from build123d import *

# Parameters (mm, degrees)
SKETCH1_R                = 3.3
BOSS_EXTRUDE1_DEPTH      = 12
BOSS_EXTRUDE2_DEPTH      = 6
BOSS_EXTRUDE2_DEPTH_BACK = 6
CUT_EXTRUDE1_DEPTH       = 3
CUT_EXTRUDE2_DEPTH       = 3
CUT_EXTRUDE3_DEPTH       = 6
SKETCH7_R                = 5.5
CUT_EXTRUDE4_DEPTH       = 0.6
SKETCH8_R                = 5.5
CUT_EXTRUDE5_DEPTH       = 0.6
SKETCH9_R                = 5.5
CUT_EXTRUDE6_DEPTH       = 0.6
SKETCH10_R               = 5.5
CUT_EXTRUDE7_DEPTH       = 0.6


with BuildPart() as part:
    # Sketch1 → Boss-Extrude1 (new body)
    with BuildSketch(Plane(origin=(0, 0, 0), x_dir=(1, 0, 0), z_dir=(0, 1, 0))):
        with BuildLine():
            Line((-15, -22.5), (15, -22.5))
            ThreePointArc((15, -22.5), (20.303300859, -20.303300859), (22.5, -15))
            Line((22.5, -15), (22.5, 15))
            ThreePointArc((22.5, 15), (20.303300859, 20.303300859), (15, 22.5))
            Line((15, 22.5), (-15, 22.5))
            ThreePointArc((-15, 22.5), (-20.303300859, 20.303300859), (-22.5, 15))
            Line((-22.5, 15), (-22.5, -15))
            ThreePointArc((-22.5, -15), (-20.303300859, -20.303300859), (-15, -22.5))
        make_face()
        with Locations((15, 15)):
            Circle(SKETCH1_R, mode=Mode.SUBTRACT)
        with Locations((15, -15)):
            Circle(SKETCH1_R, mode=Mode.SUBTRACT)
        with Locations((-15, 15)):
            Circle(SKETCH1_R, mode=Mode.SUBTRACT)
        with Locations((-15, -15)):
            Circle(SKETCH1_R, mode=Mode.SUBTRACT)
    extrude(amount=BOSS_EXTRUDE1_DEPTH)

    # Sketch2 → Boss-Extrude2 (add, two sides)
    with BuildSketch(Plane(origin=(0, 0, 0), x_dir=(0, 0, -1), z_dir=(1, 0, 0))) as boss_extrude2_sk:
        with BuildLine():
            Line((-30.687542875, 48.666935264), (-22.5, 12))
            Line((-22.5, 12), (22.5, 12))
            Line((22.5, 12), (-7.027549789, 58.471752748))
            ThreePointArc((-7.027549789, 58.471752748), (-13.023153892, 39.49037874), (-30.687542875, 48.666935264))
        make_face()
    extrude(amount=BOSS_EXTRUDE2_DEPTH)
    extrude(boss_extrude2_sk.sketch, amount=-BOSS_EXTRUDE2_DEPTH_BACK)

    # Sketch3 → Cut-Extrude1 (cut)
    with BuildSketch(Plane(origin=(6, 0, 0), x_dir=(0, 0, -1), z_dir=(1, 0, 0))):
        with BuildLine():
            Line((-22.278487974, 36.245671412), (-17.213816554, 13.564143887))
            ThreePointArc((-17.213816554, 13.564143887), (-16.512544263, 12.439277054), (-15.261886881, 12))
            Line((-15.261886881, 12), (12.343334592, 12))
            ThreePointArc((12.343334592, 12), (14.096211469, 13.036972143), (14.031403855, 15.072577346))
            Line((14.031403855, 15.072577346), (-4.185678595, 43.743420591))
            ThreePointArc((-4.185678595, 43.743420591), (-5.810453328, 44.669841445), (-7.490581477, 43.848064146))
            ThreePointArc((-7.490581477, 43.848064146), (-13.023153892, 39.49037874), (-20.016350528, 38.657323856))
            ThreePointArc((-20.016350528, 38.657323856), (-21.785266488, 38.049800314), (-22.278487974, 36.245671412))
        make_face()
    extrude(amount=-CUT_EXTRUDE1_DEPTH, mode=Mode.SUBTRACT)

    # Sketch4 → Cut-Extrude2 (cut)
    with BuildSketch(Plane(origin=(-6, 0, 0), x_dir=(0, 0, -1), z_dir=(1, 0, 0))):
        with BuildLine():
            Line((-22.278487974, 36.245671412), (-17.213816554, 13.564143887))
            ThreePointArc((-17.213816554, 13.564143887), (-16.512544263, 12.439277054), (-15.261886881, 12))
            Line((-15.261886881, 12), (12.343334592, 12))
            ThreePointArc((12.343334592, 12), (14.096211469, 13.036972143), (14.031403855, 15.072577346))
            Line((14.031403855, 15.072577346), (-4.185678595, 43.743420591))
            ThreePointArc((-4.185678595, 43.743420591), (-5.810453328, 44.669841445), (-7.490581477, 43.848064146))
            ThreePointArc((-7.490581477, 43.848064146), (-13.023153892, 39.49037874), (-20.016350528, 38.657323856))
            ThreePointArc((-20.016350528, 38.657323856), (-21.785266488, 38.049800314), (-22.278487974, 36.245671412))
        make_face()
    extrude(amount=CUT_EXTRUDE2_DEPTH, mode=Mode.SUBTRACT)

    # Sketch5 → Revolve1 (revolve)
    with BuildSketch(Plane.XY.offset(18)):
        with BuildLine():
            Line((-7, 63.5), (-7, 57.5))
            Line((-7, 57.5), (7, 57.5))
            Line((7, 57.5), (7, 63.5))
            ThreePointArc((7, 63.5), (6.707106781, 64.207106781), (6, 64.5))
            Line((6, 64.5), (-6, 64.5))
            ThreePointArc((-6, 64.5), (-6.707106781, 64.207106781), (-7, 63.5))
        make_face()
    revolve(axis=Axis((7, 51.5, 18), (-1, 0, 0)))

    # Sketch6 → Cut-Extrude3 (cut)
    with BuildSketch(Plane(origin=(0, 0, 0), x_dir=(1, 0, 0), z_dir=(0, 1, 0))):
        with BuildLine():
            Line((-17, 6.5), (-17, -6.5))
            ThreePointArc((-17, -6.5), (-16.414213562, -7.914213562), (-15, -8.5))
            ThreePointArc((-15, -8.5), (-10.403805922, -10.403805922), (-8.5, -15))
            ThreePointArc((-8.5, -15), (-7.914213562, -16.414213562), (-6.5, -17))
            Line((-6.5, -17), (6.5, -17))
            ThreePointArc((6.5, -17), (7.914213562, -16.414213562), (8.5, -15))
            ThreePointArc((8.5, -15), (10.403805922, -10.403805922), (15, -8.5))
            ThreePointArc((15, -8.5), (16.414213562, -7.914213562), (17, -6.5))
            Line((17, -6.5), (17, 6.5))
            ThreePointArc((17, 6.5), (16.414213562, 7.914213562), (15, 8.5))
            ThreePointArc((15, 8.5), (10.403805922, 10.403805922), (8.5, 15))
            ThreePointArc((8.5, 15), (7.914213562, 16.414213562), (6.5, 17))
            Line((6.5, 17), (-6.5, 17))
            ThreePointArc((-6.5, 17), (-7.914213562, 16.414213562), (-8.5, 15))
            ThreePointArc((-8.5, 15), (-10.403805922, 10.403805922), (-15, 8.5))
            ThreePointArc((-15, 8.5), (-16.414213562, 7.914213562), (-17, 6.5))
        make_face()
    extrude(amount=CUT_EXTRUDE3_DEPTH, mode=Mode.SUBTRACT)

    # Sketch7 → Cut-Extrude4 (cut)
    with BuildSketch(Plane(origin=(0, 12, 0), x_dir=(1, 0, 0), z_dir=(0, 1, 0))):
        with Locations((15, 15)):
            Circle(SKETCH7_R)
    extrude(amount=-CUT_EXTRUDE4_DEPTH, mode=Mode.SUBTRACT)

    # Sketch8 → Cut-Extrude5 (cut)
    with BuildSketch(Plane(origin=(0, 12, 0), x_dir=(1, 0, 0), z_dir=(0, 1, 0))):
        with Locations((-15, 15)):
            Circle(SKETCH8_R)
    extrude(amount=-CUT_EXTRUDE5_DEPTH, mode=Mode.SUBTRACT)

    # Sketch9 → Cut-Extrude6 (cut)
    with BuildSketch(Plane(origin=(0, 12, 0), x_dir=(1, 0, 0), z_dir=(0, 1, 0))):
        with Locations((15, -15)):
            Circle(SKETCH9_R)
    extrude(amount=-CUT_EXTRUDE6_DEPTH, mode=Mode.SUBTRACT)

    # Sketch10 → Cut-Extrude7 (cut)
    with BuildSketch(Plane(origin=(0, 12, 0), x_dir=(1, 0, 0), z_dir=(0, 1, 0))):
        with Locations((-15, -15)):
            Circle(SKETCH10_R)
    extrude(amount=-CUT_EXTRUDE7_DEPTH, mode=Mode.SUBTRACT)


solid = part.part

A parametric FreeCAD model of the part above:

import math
import FreeCAD as App
import Part
import Sketcher

V = App.Vector

doc = App.newDocument("Part")
params = doc.addObject("Spreadsheet::Sheet", "Params")
for row, (alias, value) in enumerate([
    ("sketch1_diameter", "6.6 mm"),
    ("sketch1_radius", "7.5 mm"),
    ("sketch1_width", "30 mm"),
    ("pad1_length", "12 mm"),
    ("sketch2_radius", "13 mm"),
    ("sketch2_height", "45 mm"),
    ("pad2_length", "6 mm"),
    ("pad2_length2", "6 mm"),
    ("sketch3_radius", "2 mm"),
    ("sketch3_radius2", "13 mm"),
    ("pocket1_length", "3 mm"),
    ("sketch4_radius", "2 mm"),
    ("sketch4_radius2", "13 mm"),
    ("pocket2_length", "3 mm"),
    ("sketch5_radius", "1 mm"),
    ("sketch5_width", "14 mm"),
    ("sketch5_height", "6 mm"),
    ("revolution_angle", "360 deg"),
    ("sketch6_radius", "2 mm"),
    ("sketch6_radius2", "6.5 mm"),
    ("sketch6_width", "13 mm"),
    ("pocket3_length", "6 mm"),
    ("sketch7_diameter", "11 mm"),
    ("pocket4_length", "0.6 mm"),
    ("sketch8_diameter", "11 mm"),
    ("pocket5_length", "0.6 mm"),
    ("sketch9_diameter", "11 mm"),
    ("pocket6_length", "0.6 mm"),
    ("sketch10_diameter", "11 mm"),
    ("pocket7_length", "0.6 mm"),
], start=1):
    params.set(f"A{row}", alias)
    params.set(f"B{row}", "=" + value)
    params.setAlias(f"B{row}", alias)

body = doc.addObject("PartDesign::Body", "Body")

sketch1 = body.newObject("Sketcher::SketchObject", "Sketch")
sketch1.AttachmentSupport = (doc.getObject("XZ_Plane"), [""])
sketch1.MapMode = "FlatFace"
sketch1.addGeometry([
    Part.LineSegment(V(-15, 22.5, 0), V(15, 22.5, 0)),
    Part.ArcOfCircle(Part.Circle(V(15, 15, 0), V(0, 0, 1), 7.5), math.radians(0), math.radians(90)),
    Part.LineSegment(V(22.5, 15, 0), V(22.5, -15, 0)),
    Part.ArcOfCircle(Part.Circle(V(15, -15, 0), V(0, 0, 1), 7.5), math.radians(-90), math.radians(0)),
    Part.LineSegment(V(15, -22.5, 0), V(-15, -22.5, 0)),
    Part.ArcOfCircle(Part.Circle(V(-15, -15, 0), V(0, 0, 1), 7.5), math.radians(180), math.radians(270)),
    Part.LineSegment(V(-22.5, -15, 0), V(-22.5, 15, 0)),
    Part.ArcOfCircle(Part.Circle(V(-15, 15, 0), V(0, 0, 1), 7.5), math.radians(90), math.radians(180)),
    Part.Circle(V(-15, 15, 0), V(0, 0, 1), 3.3),
    Part.Circle(V(15, 15, 0), V(0, 0, 1), 3.3),
    Part.Circle(V(-15, -15, 0), V(0, 0, 1), 3.3),
    Part.Circle(V(15, -15, 0), V(0, 0, 1), 3.3),
], False)
sketch1.addConstraint([
    Sketcher.Constraint("Tangent", 0, 2, 1, 2),
    Sketcher.Constraint("Tangent", 1, 1, 2, 1),
    Sketcher.Constraint("Tangent", 2, 2, 3, 2),
    Sketcher.Constraint("Tangent", 3, 1, 4, 1),
    Sketcher.Constraint("Tangent", 4, 2, 5, 2),
    Sketcher.Constraint("Tangent", 5, 1, 6, 1),
    Sketcher.Constraint("Tangent", 6, 2, 7, 2),
    Sketcher.Constraint("Tangent", 7, 1, 0, 1),
    Sketcher.Constraint("Horizontal", 0),
    Sketcher.Constraint("Vertical", 2),
    Sketcher.Constraint("Horizontal", 4),
    Sketcher.Constraint("Vertical", 6),
    Sketcher.Constraint("Coincident", 8, 3, 7, 3),
    Sketcher.Constraint("Coincident", 9, 3, 1, 3),
    Sketcher.Constraint("Coincident", 10, 3, 5, 3),
    Sketcher.Constraint("Coincident", 11, 3, 3, 3),
    Sketcher.Constraint("Equal", 1, 3),
    Sketcher.Constraint("Equal", 3, 5),
    Sketcher.Constraint("Equal", 5, 7),
    Sketcher.Constraint("Equal", 8, 9),
    Sketcher.Constraint("Equal", 9, 10),
    Sketcher.Constraint("Equal", 10, 11),
    Sketcher.Constraint("Symmetric", 1, 3, 5, 3, -1, 1),
    Sketcher.Constraint("Equal", 4, 2),
    Sketcher.Constraint("Diameter", 8, 6.6),
    Sketcher.Constraint("Radius", 1, 7.5),
    Sketcher.Constraint("DistanceX", 0, 1, 0, 2, 30.0),
])
sketch1.setExpression("Constraints[24]", "Params.sketch1_diameter")
sketch1.setExpression("Constraints[25]", "Params.sketch1_radius")
sketch1.setExpression("Constraints[26]", "Params.sketch1_width")
pad1 = body.newObject("PartDesign::Pad", "Pad")
pad1.Profile = sketch1
pad1.setExpression("Length", "Params.pad1_length")
pad1.Reversed = True

sketch2 = body.newObject("Sketcher::SketchObject", "Sketch001")
sketch2.AttachmentSupport = (doc.getObject("YZ_Plane"), [""])
sketch2.MapMode = "FlatFace"
sketch2.addGeometry([
    Part.LineSegment(V(48.666935, 30.687543, 0), V(12, 22.5, 0)),
    Part.LineSegment(V(12, 22.5, 0), V(12, -22.5, 0)),
    Part.LineSegment(V(12, -22.5, 0), V(58.471753, 7.02755, 0)),
    Part.ArcOfCircle(Part.Circle(V(51.5, 18, 0), V(0, 0, 1), 13), math.radians(102.587367), math.radians(302.431348)),
], False)
sketch2.addConstraint([
    Sketcher.Constraint("Coincident", 0, 2, 1, 1),
    Sketcher.Constraint("Coincident", 1, 2, 2, 1),
    Sketcher.Constraint("Tangent", 2, 2, 3, 2),
    Sketcher.Constraint("Tangent", 3, 1, 0, 1),
    Sketcher.Constraint("Vertical", 1),
    Sketcher.Constraint("Radius", 3, 13.0),
    Sketcher.Constraint("DistanceY", 1, 2, 1, 1, 45.0),
    Sketcher.Constraint("DistanceY", -1, 1, 3, 3, 18.0),
    Sketcher.Constraint("DistanceX", -1, 1, 0, 2, 12.0),
    Sketcher.Constraint("DistanceX", -1, 1, 3, 3, 51.5),
    Sketcher.Constraint("DistanceY", -1, 1, 0, 2, 22.5),
])
sketch2.setExpression("Constraints[5]", "Params.sketch2_radius")
sketch2.setExpression("Constraints[6]", "Params.sketch2_height")
pad2 = body.newObject("PartDesign::Pad", "Pad001")
pad2.Profile = sketch2
pad2.Type = "TwoLengths"
pad2.setExpression("Length", "Params.pad2_length")
pad2.setExpression("Length2", "Params.pad2_length2")

sketch3 = body.newObject("Sketcher::SketchObject", "Sketch002")
sketch3.AttachmentSupport = (doc.getObject("YZ_Plane"), [""])
sketch3.MapMode = "FlatFace"
sketch3.AttachmentOffset = App.Placement(V(0, 0, 6), App.Rotation())
sketch3.addGeometry([
    Part.LineSegment(V(36.245671, 22.278488, 0), V(13.564144, 17.213817, 0)),
    Part.ArcOfCircle(Part.Circle(V(14, 15.261887, 0), V(0, 0, 1), 2), math.radians(102.587367), math.radians(180)),
    Part.LineSegment(V(12, 15.261887, 0), V(12, -12.343335, 0)),
    Part.ArcOfCircle(Part.Circle(V(14, -12.343335, 0), V(0, 0, 1), 2), math.radians(180), math.radians(302.431348)),
    Part.LineSegment(V(15.072577, -14.031404, 0), V(43.743421, 4.185679, 0)),
    Part.ArcOfCircle(Part.Circle(V(42.670843, 5.873748, 0), V(0, 0, 1), 2), math.radians(-57.568652), math.radians(53.941537)),
    Part.ArcOfCircle(Part.Circle(V(51.5, 18, 0), V(0, 0, 1), 13), math.radians(171.077179), math.radians(233.941537)),
    Part.ArcOfCircle(Part.Circle(V(36.681528, 20.326558, 0), V(0, 0, 1), 2), math.radians(-8.922821), math.radians(102.587367)),
], False)
sketch3.addConstraint([
    Sketcher.Constraint("Tangent", 0, 2, 1, 1),
    Sketcher.Constraint("Tangent", 1, 2, 2, 1),
    Sketcher.Constraint("Tangent", 2, 2, 3, 1),
    Sketcher.Constraint("Tangent", 3, 2, 4, 1),
    Sketcher.Constraint("Tangent", 4, 2, 5, 1),
    Sketcher.Constraint("Tangent", 5, 2, 6, 2),
    Sketcher.Constraint("Tangent", 6, 1, 7, 1),
    Sketcher.Constraint("Tangent", 7, 2, 0, 1),
    Sketcher.Constraint("Vertical", 2),
    Sketcher.Constraint("Equal", 1, 3),
    Sketcher.Constraint("Equal", 3, 5),
    Sketcher.Constraint("Equal", 5, 7),
    Sketcher.Constraint("Radius", 1, 2.0),
    Sketcher.Constraint("Radius", 6, 13.0),
    Sketcher.Constraint("DistanceX", -1, 1, 1, 3, 14.0),
    Sketcher.Constraint("DistanceY", -1, 1, 6, 3, 18.0),
    Sketcher.Constraint("DistanceX", -1, 1, 6, 3, 51.5),
    Sketcher.Constraint("Distance", 4, 33.9688),
    Sketcher.Constraint("DistanceY", 2, 2, 2, 1, 27.605221),
    Sketcher.Constraint("DistanceX", 0, 2, 5, 3, 29.106699),
    Sketcher.Constraint("DistanceY", -1, 1, 7, 3, 20.326558),
])
sketch3.setExpression("Constraints[12]", "Params.sketch3_radius")
sketch3.setExpression("Constraints[13]", "Params.sketch3_radius2")
pocket1 = body.newObject("PartDesign::Pocket", "Pocket")
pocket1.Profile = sketch3
pocket1.setExpression("Length", "Params.pocket1_length")

sketch4 = body.newObject("Sketcher::SketchObject", "Sketch003")
sketch4.AttachmentSupport = (doc.getObject("YZ_Plane"), [""])
sketch4.MapMode = "FlatFace"
sketch4.AttachmentOffset = App.Placement(V(0, 0, -6), App.Rotation())
sketch4.addGeometry([
    Part.LineSegment(V(36.245671, 22.278488, 0), V(13.564144, 17.213817, 0)),
    Part.ArcOfCircle(Part.Circle(V(14, 15.261887, 0), V(0, 0, 1), 2), math.radians(102.587367), math.radians(180)),
    Part.LineSegment(V(12, 15.261887, 0), V(12, -12.343335, 0)),
    Part.ArcOfCircle(Part.Circle(V(14, -12.343335, 0), V(0, 0, 1), 2), math.radians(180), math.radians(302.431348)),
    Part.LineSegment(V(15.072577, -14.031404, 0), V(43.743421, 4.185679, 0)),
    Part.ArcOfCircle(Part.Circle(V(42.670843, 5.873748, 0), V(0, 0, 1), 2), math.radians(-57.568652), math.radians(53.941537)),
    Part.ArcOfCircle(Part.Circle(V(51.5, 18, 0), V(0, 0, 1), 13), math.radians(171.077179), math.radians(233.941537)),
    Part.ArcOfCircle(Part.Circle(V(36.681528, 20.326558, 0), V(0, 0, 1), 2), math.radians(-8.922821), math.radians(102.587367)),
], False)
sketch4.addConstraint([
    Sketcher.Constraint("Tangent", 0, 2, 1, 1),
    Sketcher.Constraint("Tangent", 1, 2, 2, 1),
    Sketcher.Constraint("Tangent", 2, 2, 3, 1),
    Sketcher.Constraint("Tangent", 3, 2, 4, 1),
    Sketcher.Constraint("Tangent", 4, 2, 5, 1),
    Sketcher.Constraint("Tangent", 5, 2, 6, 2),
    Sketcher.Constraint("Tangent", 6, 1, 7, 1),
    Sketcher.Constraint("Tangent", 7, 2, 0, 1),
    Sketcher.Constraint("Vertical", 2),
    Sketcher.Constraint("Equal", 1, 3),
    Sketcher.Constraint("Equal", 3, 5),
    Sketcher.Constraint("Equal", 5, 7),
    Sketcher.Constraint("Radius", 1, 2.0),
    Sketcher.Constraint("Radius", 6, 13.0),
    Sketcher.Constraint("DistanceX", -1, 1, 1, 3, 14.0),
    Sketcher.Constraint("DistanceY", -1, 1, 6, 3, 18.0),
    Sketcher.Constraint("DistanceX", -1, 1, 6, 3, 51.5),
    Sketcher.Constraint("Distance", 4, 33.9688),
    Sketcher.Constraint("DistanceY", 2, 2, 2, 1, 27.605221),
    Sketcher.Constraint("DistanceX", 0, 2, 5, 3, 29.106699),
    Sketcher.Constraint("DistanceY", -1, 1, 7, 3, 20.326558),
])
sketch4.setExpression("Constraints[12]", "Params.sketch4_radius")
sketch4.setExpression("Constraints[13]", "Params.sketch4_radius2")
pocket2 = body.newObject("PartDesign::Pocket", "Pocket001")
pocket2.Profile = sketch4
pocket2.setExpression("Length", "Params.pocket2_length")
pocket2.Reversed = True

sketch5 = body.newObject("Sketcher::SketchObject", "Sketch004")
sketch5.AttachmentSupport = (doc.getObject("XY_Plane"), [""])
sketch5.MapMode = "FlatFace"
sketch5.AttachmentOffset = App.Placement(V(0, 0, 18), App.Rotation())
sketch5.addGeometry([
    Part.LineSegment(V(-7, 63.5, 0), V(-7, 57.5, 0)),
    Part.LineSegment(V(-7, 57.5, 0), V(7, 57.5, 0)),
    Part.LineSegment(V(7, 57.5, 0), V(7, 63.5, 0)),
    Part.ArcOfCircle(Part.Circle(V(6, 63.5, 0), V(0, 0, 1), 1), math.radians(0), math.radians(90)),
    Part.LineSegment(V(6, 64.5, 0), V(-6, 64.5, 0)),
    Part.ArcOfCircle(Part.Circle(V(-6, 63.5, 0), V(0, 0, 1), 1), math.radians(90), math.radians(180)),
], False)
sketch5.addGeometry(Part.LineSegment(V(7, 51.5, 0), V(-7, 51.5, 0)), True)
sketch5.addConstraint([
    Sketcher.Constraint("Coincident", 0, 2, 1, 1),
    Sketcher.Constraint("Coincident", 1, 2, 2, 1),
    Sketcher.Constraint("Tangent", 2, 2, 3, 1),
    Sketcher.Constraint("Tangent", 3, 2, 4, 1),
    Sketcher.Constraint("Tangent", 4, 2, 5, 1),
    Sketcher.Constraint("Tangent", 5, 2, 0, 1),
    Sketcher.Constraint("Vertical", 0),
    Sketcher.Constraint("Horizontal", 1),
    Sketcher.Constraint("Vertical", 2),
    Sketcher.Constraint("Horizontal", 4),
    Sketcher.Constraint("Horizontal", 6),
    Sketcher.Constraint("Equal", 3, 5),
    Sketcher.Constraint("Vertical", 2, 2, 6, 1),
    Sketcher.Constraint("Vertical", 5, 2, 6, 2),
    Sketcher.Constraint("Radius", 3, 1.0),
    Sketcher.Constraint("DistanceX", 1, 1, 1, 2, 14.0),
    Sketcher.Constraint("DistanceY", 0, 2, 0, 1, 6.0),
    Sketcher.Constraint("DistanceX", -1, 1, 3, 3, 6.0),
    Sketcher.Constraint("DistanceY", 6, 1, 1, 2, 6.0),
    Sketcher.Constraint("DistanceY", -1, 1, 3, 3, 63.5),
])
sketch5.setExpression("Constraints[14]", "Params.sketch5_radius")
sketch5.setExpression("Constraints[15]", "Params.sketch5_width")
sketch5.setExpression("Constraints[16]", "Params.sketch5_height")
revolution = body.newObject("PartDesign::Revolution", "Revolution")
revolution.Profile = sketch5
revolution.ReferenceAxis = (sketch5, ["Axis0"])
revolution.setExpression("Angle", "Params.revolution_angle")

sketch6 = body.newObject("Sketcher::SketchObject", "Sketch005")
sketch6.AttachmentSupport = (doc.getObject("XZ_Plane"), [""])
sketch6.MapMode = "FlatFace"
sketch6.addGeometry([
    Part.LineSegment(V(-17, -6.5, 0), V(-17, 6.5, 0)),
    Part.ArcOfCircle(Part.Circle(V(-15, 6.5, 0), V(0, 0, 1), 2), math.radians(90), math.radians(180)),
    Part.ArcOfCircle(Part.Circle(V(-15, 15, 0), V(0, 0, 1), 6.5), math.radians(-90), math.radians(0)),
    Part.ArcOfCircle(Part.Circle(V(-6.5, 15, 0), V(0, 0, 1), 2), math.radians(90), math.radians(180)),
    Part.LineSegment(V(-6.5, 17, 0), V(6.5, 17, 0)),
    Part.ArcOfCircle(Part.Circle(V(6.5, 15, 0), V(0, 0, 1), 2), math.radians(0), math.radians(90)),
    Part.ArcOfCircle(Part.Circle(V(15, 15, 0), V(0, 0, 1), 6.5), math.radians(180), math.radians(270)),
    Part.ArcOfCircle(Part.Circle(V(15, 6.5, 0), V(0, 0, 1), 2), math.radians(0), math.radians(90)),
    Part.LineSegment(V(17, 6.5, 0), V(17, -6.5, 0)),
    Part.ArcOfCircle(Part.Circle(V(15, -6.5, 0), V(0, 0, 1), 2), math.radians(-90), math.radians(0)),
    Part.ArcOfCircle(Part.Circle(V(15, -15, 0), V(0, 0, 1), 6.5), math.radians(90), math.radians(180)),
    Part.ArcOfCircle(Part.Circle(V(6.5, -15, 0), V(0, 0, 1), 2), math.radians(-90), math.radians(0)),
    Part.LineSegment(V(6.5, -17, 0), V(-6.5, -17, 0)),
    Part.ArcOfCircle(Part.Circle(V(-6.5, -15, 0), V(0, 0, 1), 2), math.radians(-180), math.radians(-90)),
    Part.ArcOfCircle(Part.Circle(V(-15, -15, 0), V(0, 0, 1), 6.5), math.radians(0), math.radians(90)),
    Part.ArcOfCircle(Part.Circle(V(-15, -6.5, 0), V(0, 0, 1), 2), math.radians(-180), math.radians(-90)),
], False)
sketch6.addConstraint([
    Sketcher.Constraint("Tangent", 0, 2, 1, 2),
    Sketcher.Constraint("Tangent", 1, 1, 2, 1),
    Sketcher.Constraint("Tangent", 2, 2, 3, 2),
    Sketcher.Constraint("Tangent", 3, 1, 4, 1),
    Sketcher.Constraint("Tangent", 4, 2, 5, 2),
    Sketcher.Constraint("Tangent", 5, 1, 6, 1),
    Sketcher.Constraint("Tangent", 6, 2, 7, 2),
    Sketcher.Constraint("Tangent", 7, 1, 8, 1),
    Sketcher.Constraint("Tangent", 8, 2, 9, 2),
    Sketcher.Constraint("Tangent", 9, 1, 10, 1),
    Sketcher.Constraint("Tangent", 10, 2, 11, 2),
    Sketcher.Constraint("Tangent", 11, 1, 12, 1),
    Sketcher.Constraint("Tangent", 12, 2, 13, 2),
    Sketcher.Constraint("Tangent", 13, 1, 14, 1),
    Sketcher.Constraint("Tangent", 14, 2, 15, 2),
    Sketcher.Constraint("Tangent", 15, 1, 0, 1),
    Sketcher.Constraint("Vertical", 0),
    Sketcher.Constraint("Horizontal", 4),
    Sketcher.Constraint("Vertical", 8),
    Sketcher.Constraint("Horizontal", 12),
    Sketcher.Constraint("Equal", 1, 3),
    Sketcher.Constraint("Equal", 3, 5),
    Sketcher.Constraint("Equal", 2, 6),
    Sketcher.Constraint("Equal", 5, 7),
    Sketcher.Constraint("Equal", 7, 9),
    Sketcher.Constraint("Equal", 6, 10),
    Sketcher.Constraint("Equal", 9, 11),
    Sketcher.Constraint("Equal", 11, 13),
    Sketcher.Constraint("Equal", 10, 14),
    Sketcher.Constraint("Equal", 13, 15),
    Sketcher.Constraint("Symmetric", 1, 3, 9, 3, -1, 1),
    Sketcher.Constraint("Symmetric", 3, 3, 11, 3, -1, 1),
    Sketcher.Constraint("Symmetric", 6, 3, 14, 3, -1, 1),
    Sketcher.Constraint("Symmetric", 2, 3, 6, 3, -2),
    Sketcher.Constraint("Horizontal", 2, 3, 3, 3),
    Sketcher.Constraint("Vertical", 1, 3, 2, 3),
    Sketcher.Constraint("Equal", 12, 0),
    Sketcher.Constraint("Radius", 1, 2.0),
    Sketcher.Constraint("Radius", 2, 6.5),
    Sketcher.Constraint("DistanceX", 4, 1, 4, 2, 13.0),
])
sketch6.setExpression("Constraints[37]", "Params.sketch6_radius")
sketch6.setExpression("Constraints[38]", "Params.sketch6_radius2")
sketch6.setExpression("Constraints[39]", "Params.sketch6_width")
pocket3 = body.newObject("PartDesign::Pocket", "Pocket002")
pocket3.Profile = sketch6
pocket3.setExpression("Length", "Params.pocket3_length")

sketch7 = body.newObject("Sketcher::SketchObject", "Sketch006")
sketch7.AttachmentSupport = (doc.getObject("XZ_Plane"), [""])
sketch7.MapMode = "FlatFace"
sketch7.AttachmentOffset = App.Placement(V(0, 0, -12), App.Rotation())
sketch7.addGeometry(Part.Circle(V(15, -15, 0), V(0, 0, 1), 5.5), False)
sketch7.addConstraint([
    Sketcher.Constraint("Diameter", 0, 11.0),
    Sketcher.Constraint("DistanceX", -1, 1, 0, 3, 15.0),
    Sketcher.Constraint("DistanceY", 0, 3, -1, 1, 15.0),
])
sketch7.setExpression("Constraints[0]", "Params.sketch7_diameter")
pocket4 = body.newObject("PartDesign::Pocket", "Pocket003")
pocket4.Profile = sketch7
pocket4.setExpression("Length", "Params.pocket4_length")
pocket4.Reversed = True

sketch8 = body.newObject("Sketcher::SketchObject", "Sketch007")
sketch8.AttachmentSupport = (doc.getObject("XZ_Plane"), [""])
sketch8.MapMode = "FlatFace"
sketch8.AttachmentOffset = App.Placement(V(0, 0, -12), App.Rotation())
sketch8.addGeometry(Part.Circle(V(-15, -15, 0), V(0, 0, 1), 5.5), False)
sketch8.addConstraint([
    Sketcher.Constraint("Diameter", 0, 11.0),
    Sketcher.Constraint("DistanceX", 0, 3, -1, 1, 15.0),
    Sketcher.Constraint("DistanceY", 0, 3, -1, 1, 15.0),
])
sketch8.setExpression("Constraints[0]", "Params.sketch8_diameter")
pocket5 = body.newObject("PartDesign::Pocket", "Pocket004")
pocket5.Profile = sketch8
pocket5.setExpression("Length", "Params.pocket5_length")
pocket5.Reversed = True

sketch9 = body.newObject("Sketcher::SketchObject", "Sketch008")
sketch9.AttachmentSupport = (doc.getObject("XZ_Plane"), [""])
sketch9.MapMode = "FlatFace"
sketch9.AttachmentOffset = App.Placement(V(0, 0, -12), App.Rotation())
sketch9.addGeometry(Part.Circle(V(15, 15, 0), V(0, 0, 1), 5.5), False)
sketch9.addConstraint([
    Sketcher.Constraint("Diameter", 0, 11.0),
    Sketcher.Constraint("DistanceX", -1, 1, 0, 3, 15.0),
    Sketcher.Constraint("DistanceY", -1, 1, 0, 3, 15.0),
])
sketch9.setExpression("Constraints[0]", "Params.sketch9_diameter")
pocket6 = body.newObject("PartDesign::Pocket", "Pocket005")
pocket6.Profile = sketch9
pocket6.setExpression("Length", "Params.pocket6_length")
pocket6.Reversed = True

sketch10 = body.newObject("Sketcher::SketchObject", "Sketch009")
sketch10.AttachmentSupport = (doc.getObject("XZ_Plane"), [""])
sketch10.MapMode = "FlatFace"
sketch10.AttachmentOffset = App.Placement(V(0, 0, -12), App.Rotation())
sketch10.addGeometry(Part.Circle(V(-15, 15, 0), V(0, 0, 1), 5.5), False)
sketch10.addConstraint([
    Sketcher.Constraint("Diameter", 0, 11.0),
    Sketcher.Constraint("DistanceX", 0, 3, -1, 1, 15.0),
    Sketcher.Constraint("DistanceY", -1, 1, 0, 3, 15.0),
])
sketch10.setExpression("Constraints[0]", "Params.sketch10_diameter")
pocket7 = body.newObject("PartDesign::Pocket", "Pocket006")
pocket7.Profile = sketch10
pocket7.setExpression("Length", "Params.pocket7_length")
pocket7.Reversed = True

doc.recompute()
